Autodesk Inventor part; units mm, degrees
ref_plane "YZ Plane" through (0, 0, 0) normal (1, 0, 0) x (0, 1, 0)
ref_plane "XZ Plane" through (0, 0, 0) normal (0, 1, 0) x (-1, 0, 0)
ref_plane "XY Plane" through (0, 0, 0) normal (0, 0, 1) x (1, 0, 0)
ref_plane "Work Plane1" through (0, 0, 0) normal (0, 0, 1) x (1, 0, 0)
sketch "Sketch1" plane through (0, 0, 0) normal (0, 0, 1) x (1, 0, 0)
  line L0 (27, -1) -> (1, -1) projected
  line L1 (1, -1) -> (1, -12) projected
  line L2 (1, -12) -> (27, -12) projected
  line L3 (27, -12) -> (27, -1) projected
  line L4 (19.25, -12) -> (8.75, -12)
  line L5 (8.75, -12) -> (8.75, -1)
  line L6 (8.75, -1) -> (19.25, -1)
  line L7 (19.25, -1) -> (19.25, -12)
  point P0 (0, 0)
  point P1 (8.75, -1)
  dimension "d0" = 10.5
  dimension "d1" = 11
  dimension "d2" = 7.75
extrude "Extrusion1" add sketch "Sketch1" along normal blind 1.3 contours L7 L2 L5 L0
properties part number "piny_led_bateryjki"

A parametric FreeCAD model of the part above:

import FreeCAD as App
import Part
import Sketcher
from FreeCAD import Vector
Q = App.Units.Quantity


def add_polygon(sketch, points):
    """Adds a closed chain of lines whose ends are joined by coincident constraints."""
    first, n = sketch.GeometryCount, len(points)
    for a, b in zip(points, points[1:] + points[:1]):
        sketch.addGeometry(Part.LineSegment(App.Vector(*a, 0), App.Vector(*b, 0)), False)
    for i in range(n):
        sketch.addConstraint(Sketcher.Constraint("Coincident", first + i, 2, first + (i + 1) % n, 1))

doc = App.newDocument("Part")
body = doc.addObject("PartDesign::Body", "Body")

# Sketch on XY plane
sketch1 = body.newObject("Sketcher::SketchObject", "Sketch")
sketch1.AttachmentSupport = (doc.getObject("XY_Plane"), [""])
sketch1.MapMode = "FlatFace"
add_polygon(sketch1, [(19, -12), (19, -1), (9, -1), (9, -12)])  # lines 0-3
sketch1.addConstraint([
    Sketcher.Constraint("Vertical", 0),
    Sketcher.Constraint("Horizontal", 1),
    Sketcher.Constraint("Vertical", 2),
    Sketcher.Constraint("Horizontal", 3),
    Sketcher.Constraint("DistanceY", 0, 1, 0, 2, Q("11 mm")),
    Sketcher.Constraint("DistanceX", 1, 2, 1, 1, Q("10.5 mm")),
    Sketcher.Constraint("DistanceY", 0, 2, -1, 1, Q("1 mm")),
    Sketcher.Constraint("DistanceX", -1, 1, 0, 2, Q("19.25 mm")),
])
pad1 = body.newObject("PartDesign::Pad", "Pad")
pad1.Profile = sketch1
pad1.Length = 1.3

doc.recompute()
